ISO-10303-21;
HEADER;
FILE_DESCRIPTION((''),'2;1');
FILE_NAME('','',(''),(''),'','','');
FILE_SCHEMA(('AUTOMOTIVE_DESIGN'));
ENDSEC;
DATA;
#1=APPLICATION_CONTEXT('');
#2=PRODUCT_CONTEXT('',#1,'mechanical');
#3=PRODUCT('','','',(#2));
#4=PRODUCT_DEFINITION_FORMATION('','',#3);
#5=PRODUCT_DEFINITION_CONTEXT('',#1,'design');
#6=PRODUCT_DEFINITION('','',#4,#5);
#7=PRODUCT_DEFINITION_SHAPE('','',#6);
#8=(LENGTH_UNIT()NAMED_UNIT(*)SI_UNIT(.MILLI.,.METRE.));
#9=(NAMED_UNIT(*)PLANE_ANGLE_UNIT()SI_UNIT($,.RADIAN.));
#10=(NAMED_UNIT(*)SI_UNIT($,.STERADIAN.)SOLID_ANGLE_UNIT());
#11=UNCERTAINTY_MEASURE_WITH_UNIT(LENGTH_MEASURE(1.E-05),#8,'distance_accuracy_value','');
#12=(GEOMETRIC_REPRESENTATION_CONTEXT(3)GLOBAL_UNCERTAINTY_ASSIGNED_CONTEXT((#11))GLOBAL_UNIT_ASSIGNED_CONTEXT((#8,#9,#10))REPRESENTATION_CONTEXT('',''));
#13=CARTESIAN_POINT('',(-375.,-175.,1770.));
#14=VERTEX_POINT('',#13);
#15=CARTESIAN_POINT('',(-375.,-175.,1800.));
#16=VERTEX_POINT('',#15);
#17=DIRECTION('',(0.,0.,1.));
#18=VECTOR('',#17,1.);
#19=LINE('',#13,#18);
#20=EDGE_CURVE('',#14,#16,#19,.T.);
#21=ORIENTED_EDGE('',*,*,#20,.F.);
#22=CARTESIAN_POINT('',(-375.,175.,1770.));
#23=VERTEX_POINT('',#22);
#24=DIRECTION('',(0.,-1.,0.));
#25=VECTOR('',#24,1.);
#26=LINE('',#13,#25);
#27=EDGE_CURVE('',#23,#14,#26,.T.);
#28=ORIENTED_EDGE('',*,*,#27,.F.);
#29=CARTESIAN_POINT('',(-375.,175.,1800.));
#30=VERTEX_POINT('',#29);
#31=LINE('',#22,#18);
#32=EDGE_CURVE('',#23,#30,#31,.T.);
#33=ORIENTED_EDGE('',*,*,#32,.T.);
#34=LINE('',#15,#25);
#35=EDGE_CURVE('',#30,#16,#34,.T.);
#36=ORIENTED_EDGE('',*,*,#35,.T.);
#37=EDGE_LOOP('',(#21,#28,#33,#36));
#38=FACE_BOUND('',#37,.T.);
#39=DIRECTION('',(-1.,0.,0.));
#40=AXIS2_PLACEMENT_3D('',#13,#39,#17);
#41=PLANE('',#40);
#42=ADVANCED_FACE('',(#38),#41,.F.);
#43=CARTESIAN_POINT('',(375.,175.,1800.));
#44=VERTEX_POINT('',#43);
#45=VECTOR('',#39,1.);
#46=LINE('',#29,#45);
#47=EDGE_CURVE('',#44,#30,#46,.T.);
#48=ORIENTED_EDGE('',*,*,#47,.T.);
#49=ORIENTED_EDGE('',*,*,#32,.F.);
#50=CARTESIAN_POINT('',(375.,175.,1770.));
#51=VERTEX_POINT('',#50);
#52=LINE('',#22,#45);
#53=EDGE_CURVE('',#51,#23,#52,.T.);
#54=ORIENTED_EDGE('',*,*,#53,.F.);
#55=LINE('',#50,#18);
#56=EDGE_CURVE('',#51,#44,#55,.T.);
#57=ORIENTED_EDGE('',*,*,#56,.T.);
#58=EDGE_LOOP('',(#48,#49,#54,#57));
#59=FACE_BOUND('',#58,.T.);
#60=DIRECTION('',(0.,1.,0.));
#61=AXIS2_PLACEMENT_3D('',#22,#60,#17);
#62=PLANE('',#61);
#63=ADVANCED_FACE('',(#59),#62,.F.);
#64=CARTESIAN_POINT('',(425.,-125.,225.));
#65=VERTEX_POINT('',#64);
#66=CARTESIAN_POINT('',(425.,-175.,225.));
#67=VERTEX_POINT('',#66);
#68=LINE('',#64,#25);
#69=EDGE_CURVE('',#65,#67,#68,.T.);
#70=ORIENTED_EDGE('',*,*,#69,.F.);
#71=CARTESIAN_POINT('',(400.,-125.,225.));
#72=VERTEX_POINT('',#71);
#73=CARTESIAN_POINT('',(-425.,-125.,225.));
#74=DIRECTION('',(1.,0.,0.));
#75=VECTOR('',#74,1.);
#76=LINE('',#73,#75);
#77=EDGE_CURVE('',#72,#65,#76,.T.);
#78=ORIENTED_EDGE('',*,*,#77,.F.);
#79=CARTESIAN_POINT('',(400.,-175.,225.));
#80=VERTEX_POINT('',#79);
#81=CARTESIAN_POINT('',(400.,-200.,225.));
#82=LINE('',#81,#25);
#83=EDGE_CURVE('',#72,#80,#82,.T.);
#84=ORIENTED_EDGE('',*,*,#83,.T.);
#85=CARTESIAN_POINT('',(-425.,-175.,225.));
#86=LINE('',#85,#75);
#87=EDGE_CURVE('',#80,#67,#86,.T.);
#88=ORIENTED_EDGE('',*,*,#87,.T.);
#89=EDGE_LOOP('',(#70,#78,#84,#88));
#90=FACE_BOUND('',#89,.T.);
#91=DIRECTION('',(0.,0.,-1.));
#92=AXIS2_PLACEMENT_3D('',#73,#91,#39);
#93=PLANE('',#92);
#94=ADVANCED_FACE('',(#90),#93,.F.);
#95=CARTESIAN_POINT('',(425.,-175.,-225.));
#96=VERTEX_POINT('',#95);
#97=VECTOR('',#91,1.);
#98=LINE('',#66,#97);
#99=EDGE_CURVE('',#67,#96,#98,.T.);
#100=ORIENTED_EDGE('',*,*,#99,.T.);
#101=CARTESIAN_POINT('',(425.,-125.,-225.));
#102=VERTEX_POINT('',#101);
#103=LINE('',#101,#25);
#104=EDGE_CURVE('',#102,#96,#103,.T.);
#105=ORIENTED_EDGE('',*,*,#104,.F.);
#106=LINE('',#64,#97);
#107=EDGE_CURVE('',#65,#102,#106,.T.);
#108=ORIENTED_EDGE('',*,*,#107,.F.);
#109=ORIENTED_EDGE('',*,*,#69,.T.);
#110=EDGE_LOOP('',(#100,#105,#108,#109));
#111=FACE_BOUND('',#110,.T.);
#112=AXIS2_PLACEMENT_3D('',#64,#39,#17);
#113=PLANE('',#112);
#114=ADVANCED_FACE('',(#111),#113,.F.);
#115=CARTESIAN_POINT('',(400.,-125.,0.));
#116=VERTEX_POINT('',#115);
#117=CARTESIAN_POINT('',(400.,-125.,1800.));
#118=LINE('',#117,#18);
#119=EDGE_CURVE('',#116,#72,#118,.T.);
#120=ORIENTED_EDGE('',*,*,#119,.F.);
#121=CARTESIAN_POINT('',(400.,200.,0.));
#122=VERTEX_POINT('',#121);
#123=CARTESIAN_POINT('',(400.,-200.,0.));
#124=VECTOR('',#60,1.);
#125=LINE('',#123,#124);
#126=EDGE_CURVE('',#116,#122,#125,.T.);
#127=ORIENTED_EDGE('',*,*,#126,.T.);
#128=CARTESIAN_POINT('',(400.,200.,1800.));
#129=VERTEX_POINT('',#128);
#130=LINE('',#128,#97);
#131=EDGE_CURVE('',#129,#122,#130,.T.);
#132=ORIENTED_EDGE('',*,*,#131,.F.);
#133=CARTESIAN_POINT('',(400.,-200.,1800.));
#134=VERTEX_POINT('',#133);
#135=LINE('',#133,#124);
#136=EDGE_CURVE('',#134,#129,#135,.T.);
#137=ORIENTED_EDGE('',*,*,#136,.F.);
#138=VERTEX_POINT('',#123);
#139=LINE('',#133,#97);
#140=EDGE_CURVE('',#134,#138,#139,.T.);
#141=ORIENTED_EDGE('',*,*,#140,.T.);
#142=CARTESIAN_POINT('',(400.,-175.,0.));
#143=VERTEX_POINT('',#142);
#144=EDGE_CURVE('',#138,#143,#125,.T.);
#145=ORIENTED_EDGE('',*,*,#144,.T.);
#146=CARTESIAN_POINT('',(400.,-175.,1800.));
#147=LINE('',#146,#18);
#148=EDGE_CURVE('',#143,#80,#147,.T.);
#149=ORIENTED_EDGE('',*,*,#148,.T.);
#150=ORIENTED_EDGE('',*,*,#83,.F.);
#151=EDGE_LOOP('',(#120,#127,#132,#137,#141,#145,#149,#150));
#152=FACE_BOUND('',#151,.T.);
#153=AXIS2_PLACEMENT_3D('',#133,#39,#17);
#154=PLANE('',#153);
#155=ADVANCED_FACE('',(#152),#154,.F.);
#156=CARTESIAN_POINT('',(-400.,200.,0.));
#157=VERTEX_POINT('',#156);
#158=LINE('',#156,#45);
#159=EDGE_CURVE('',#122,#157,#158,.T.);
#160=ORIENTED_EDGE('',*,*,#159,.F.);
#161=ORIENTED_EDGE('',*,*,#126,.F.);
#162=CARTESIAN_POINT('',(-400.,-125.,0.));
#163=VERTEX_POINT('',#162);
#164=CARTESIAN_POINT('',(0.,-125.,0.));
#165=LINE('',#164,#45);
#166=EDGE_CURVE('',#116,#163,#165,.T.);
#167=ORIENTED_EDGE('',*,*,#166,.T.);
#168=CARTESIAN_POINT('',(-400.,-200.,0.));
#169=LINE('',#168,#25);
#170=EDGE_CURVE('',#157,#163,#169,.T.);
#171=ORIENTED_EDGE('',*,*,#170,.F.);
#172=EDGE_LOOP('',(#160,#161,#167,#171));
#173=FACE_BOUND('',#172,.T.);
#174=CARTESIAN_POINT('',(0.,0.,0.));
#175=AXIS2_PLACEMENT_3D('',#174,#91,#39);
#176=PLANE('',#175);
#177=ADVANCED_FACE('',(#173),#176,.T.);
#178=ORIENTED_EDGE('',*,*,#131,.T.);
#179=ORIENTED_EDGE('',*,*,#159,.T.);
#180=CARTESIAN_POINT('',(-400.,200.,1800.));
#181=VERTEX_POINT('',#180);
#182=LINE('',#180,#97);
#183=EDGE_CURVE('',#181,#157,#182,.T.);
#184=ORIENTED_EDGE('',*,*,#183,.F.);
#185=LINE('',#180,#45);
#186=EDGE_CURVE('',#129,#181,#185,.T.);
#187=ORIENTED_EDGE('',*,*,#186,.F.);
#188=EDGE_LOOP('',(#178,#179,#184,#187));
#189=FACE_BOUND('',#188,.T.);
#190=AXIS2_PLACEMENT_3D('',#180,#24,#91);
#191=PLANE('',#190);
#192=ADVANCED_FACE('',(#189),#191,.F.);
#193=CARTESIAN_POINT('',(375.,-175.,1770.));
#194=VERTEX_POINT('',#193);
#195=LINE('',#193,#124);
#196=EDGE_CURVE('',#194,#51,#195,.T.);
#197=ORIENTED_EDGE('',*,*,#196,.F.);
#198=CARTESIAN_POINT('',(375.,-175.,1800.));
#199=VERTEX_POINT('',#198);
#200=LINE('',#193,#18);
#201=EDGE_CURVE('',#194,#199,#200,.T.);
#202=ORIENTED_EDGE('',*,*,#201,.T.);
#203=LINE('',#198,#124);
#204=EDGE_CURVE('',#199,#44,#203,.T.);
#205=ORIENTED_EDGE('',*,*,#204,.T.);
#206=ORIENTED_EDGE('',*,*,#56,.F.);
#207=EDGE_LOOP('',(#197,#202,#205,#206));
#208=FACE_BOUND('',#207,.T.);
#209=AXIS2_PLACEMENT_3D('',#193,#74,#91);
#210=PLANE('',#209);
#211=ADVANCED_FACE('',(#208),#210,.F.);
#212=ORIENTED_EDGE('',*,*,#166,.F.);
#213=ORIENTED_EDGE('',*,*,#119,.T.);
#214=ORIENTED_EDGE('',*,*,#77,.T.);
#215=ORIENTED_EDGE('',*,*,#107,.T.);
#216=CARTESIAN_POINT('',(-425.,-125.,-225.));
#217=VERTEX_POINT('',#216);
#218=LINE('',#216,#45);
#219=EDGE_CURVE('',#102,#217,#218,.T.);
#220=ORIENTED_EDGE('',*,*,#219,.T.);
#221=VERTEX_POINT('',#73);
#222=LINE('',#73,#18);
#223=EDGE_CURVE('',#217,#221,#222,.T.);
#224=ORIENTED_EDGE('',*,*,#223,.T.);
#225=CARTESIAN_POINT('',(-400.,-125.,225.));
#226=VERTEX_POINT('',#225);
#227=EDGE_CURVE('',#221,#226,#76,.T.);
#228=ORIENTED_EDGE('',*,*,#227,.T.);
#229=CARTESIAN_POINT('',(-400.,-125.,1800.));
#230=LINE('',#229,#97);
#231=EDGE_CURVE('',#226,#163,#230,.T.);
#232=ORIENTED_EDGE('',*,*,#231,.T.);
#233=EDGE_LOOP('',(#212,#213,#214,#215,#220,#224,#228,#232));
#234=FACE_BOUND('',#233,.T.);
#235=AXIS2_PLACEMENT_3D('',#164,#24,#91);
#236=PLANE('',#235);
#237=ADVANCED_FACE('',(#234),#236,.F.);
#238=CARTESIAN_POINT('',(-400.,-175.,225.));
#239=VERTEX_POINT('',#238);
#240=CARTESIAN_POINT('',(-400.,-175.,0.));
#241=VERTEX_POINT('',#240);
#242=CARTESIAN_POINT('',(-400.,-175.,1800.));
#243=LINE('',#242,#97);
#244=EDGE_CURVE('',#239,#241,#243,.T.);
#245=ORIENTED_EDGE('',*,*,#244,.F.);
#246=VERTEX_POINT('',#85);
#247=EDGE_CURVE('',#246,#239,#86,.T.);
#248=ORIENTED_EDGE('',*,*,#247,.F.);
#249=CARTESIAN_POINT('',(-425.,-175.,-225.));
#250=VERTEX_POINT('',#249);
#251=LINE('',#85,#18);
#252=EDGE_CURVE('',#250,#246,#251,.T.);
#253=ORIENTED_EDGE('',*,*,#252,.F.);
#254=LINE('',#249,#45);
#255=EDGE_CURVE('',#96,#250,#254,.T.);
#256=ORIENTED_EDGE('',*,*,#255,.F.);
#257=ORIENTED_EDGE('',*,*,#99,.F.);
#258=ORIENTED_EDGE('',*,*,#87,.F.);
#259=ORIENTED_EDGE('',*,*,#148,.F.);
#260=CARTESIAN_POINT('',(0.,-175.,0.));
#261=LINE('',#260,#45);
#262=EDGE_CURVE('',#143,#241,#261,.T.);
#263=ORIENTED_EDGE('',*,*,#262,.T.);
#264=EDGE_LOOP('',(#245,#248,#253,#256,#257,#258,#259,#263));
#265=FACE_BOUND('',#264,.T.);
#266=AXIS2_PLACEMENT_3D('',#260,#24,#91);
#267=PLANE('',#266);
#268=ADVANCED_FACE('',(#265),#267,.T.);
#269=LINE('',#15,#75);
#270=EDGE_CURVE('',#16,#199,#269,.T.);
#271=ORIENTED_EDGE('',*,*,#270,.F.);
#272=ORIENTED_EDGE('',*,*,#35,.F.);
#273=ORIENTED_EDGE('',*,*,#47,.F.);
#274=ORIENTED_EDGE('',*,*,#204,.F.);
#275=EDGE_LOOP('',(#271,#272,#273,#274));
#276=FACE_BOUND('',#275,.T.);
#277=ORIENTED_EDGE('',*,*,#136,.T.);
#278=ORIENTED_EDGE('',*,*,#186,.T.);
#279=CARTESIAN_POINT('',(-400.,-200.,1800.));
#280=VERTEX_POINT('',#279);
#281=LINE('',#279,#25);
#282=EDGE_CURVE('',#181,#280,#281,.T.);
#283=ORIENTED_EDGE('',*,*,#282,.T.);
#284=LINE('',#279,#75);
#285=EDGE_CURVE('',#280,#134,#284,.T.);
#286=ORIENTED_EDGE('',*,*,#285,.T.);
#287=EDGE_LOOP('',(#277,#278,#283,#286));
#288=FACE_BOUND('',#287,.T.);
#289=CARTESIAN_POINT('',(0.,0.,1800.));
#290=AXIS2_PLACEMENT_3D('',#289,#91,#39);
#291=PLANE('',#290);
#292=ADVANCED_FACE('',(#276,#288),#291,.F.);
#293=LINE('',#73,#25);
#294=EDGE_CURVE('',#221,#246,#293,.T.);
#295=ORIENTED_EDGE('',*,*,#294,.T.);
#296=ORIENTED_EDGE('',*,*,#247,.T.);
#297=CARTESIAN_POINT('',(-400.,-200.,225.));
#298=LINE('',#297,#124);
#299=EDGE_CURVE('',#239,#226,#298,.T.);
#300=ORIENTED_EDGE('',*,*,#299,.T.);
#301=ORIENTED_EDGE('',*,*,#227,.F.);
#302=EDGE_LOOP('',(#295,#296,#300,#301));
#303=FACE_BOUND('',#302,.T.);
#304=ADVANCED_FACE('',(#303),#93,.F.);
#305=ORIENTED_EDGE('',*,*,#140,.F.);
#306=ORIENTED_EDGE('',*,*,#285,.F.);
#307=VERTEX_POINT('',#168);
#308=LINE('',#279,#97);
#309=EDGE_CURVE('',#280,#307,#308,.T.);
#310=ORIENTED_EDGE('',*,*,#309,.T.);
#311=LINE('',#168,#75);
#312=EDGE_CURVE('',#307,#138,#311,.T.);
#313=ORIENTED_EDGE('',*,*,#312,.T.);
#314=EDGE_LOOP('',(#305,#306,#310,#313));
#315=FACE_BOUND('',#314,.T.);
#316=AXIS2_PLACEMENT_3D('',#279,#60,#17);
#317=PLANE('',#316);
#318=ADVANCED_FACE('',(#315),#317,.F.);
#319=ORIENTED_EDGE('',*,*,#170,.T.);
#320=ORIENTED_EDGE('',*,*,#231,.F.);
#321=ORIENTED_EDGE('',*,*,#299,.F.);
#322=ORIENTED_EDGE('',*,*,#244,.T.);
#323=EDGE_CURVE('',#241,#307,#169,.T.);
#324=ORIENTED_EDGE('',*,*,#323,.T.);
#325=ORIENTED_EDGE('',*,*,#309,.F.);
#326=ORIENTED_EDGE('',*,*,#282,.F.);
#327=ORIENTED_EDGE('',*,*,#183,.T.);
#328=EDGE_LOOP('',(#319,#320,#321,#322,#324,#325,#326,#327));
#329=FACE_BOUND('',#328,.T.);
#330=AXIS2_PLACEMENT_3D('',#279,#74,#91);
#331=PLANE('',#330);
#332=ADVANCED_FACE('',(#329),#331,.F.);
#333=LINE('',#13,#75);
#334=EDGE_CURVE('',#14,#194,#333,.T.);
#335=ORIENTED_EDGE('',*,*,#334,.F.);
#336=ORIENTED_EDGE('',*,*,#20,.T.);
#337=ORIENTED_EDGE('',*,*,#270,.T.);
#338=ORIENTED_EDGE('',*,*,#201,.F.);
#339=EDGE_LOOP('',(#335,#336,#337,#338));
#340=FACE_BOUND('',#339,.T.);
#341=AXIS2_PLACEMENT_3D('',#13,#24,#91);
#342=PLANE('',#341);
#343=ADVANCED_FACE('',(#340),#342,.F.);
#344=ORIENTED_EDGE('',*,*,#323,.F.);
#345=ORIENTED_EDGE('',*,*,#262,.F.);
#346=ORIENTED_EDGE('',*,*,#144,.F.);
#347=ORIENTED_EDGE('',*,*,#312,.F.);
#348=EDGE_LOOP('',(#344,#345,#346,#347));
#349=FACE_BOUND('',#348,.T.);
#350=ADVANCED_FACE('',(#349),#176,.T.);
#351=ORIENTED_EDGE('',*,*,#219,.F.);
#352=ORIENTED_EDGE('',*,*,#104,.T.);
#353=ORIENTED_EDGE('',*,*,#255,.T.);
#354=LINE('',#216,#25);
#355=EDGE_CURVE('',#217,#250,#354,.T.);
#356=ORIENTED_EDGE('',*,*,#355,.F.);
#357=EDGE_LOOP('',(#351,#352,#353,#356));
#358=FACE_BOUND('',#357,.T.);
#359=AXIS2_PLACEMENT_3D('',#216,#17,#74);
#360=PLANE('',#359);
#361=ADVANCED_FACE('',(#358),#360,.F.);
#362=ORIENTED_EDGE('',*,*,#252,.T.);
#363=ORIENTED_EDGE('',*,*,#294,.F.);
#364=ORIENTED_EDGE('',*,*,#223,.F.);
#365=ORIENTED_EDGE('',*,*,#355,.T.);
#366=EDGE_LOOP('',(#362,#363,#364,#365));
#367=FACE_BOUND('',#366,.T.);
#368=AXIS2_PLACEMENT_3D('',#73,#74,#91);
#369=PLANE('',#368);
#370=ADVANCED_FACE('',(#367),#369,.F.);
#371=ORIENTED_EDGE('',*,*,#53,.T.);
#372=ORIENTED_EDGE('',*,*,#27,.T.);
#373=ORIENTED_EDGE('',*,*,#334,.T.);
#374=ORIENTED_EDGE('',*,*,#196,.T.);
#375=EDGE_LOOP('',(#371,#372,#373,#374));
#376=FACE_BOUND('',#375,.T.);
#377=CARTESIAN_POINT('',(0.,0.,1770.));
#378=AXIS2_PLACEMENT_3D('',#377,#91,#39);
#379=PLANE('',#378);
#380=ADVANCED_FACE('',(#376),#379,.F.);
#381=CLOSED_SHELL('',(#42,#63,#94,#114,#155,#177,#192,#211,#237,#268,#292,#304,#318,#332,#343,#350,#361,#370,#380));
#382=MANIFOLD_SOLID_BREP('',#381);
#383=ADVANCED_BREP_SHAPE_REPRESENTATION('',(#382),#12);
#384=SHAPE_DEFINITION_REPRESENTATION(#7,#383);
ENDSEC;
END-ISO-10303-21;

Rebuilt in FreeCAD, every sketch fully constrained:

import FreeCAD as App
import Part
import Sketcher
Q = App.Units.Quantity


def add_polygon(sketch, points):
    """Adds a closed chain of lines whose ends are joined by coincident constraints."""
    first, n = sketch.GeometryCount, len(points)
    for a, b in zip(points, points[1:] + points[:1]):
        sketch.addGeometry(Part.LineSegment(App.Vector(*a, 0), App.Vector(*b, 0)), False)
    for i in range(n):
        sketch.addConstraint(Sketcher.Constraint("Coincident", first + i, 2, first + (i + 1) % n, 1))

doc = App.newDocument("Part")
body = doc.addObject("PartDesign::Body", "Body")

# Sketch on XY plane
sketch1 = body.newObject("Sketcher::SketchObject", "Sketch")
sketch1.AttachmentSupport = (doc.getObject("XY_Plane"), [""])
sketch1.MapMode = "FlatFace"
add_polygon(sketch1, [(-400, 200), (-400, -200), (400, -200), (400, 200)])  # lines 0-3
sketch1.addConstraint(Sketcher.Constraint("Vertical", 0))
sketch1.addConstraint(Sketcher.Constraint("Horizontal", 1))
sketch1.addConstraint(Sketcher.Constraint("Vertical", 2))
sketch1.addConstraint(Sketcher.Constraint("Horizontal", 3))
sketch1.addConstraint(Sketcher.Constraint("Symmetric", 0, 2, 2, 2, -1, 1))
sketch1.addConstraint(Sketcher.Constraint("DistanceX", 1, 1, 1, 2, Q("800 mm")))
sketch1.addConstraint(Sketcher.Constraint("DistanceY", 0, 2, 0, 1, Q("400 mm")))
pad1 = body.newObject("PartDesign::Pad", "Pad")
pad1.Profile = sketch1
pad1.Length = 1800

# Sketch on XY plane
sketch2 = body.newObject("Sketcher::SketchObject", "Sketch001")
sketch2.AttachmentSupport = (doc.getObject("XY_Plane"), [""])
sketch2.MapMode = "FlatFace"
sketch2.AttachmentOffset = App.Placement(App.Vector(0, 0, 1800), App.Rotation())
add_polygon(sketch2, [(-375, 175), (-375, -175), (375, -175), (375, 175)])  # lines 0-3
sketch2.addConstraint(Sketcher.Constraint("Vertical", 0))
sketch2.addConstraint(Sketcher.Constraint("Horizontal", 1))
sketch2.addConstraint(Sketcher.Constraint("Vertical", 2))
sketch2.addConstraint(Sketcher.Constraint("Horizontal", 3))
sketch2.addConstraint(Sketcher.Constraint("Symmetric", 0, 2, 2, 2, -1, 1))
sketch2.addConstraint(Sketcher.Constraint("DistanceX", 1, 1, 1, 2, Q("750 mm")))
sketch2.addConstraint(Sketcher.Constraint("DistanceY", 0, 2, 0, 1, Q("350 mm")))
pocket1 = body.newObject("PartDesign::Pocket", "Pocket")
pocket1.Profile = sketch2
pocket1.Length = 30

# Sketch on XY plane
sketch3 = body.newObject("Sketcher::SketchObject", "Sketch002")
sketch3.AttachmentSupport = (doc.getObject("XY_Plane"), [""])
sketch3.MapMode = "FlatFace"
add_polygon(sketch3, [(-375, -170), (-375, -190), (375, -190), (375, -170)])  # lines 0-3
sketch3.addConstraint(Sketcher.Constraint("Vertical", 0))
sketch3.addConstraint(Sketcher.Constraint("Horizontal", 1))
sketch3.addConstraint(Sketcher.Constraint("Vertical", 2))
sketch3.addConstraint(Sketcher.Constraint("Horizontal", 3))
sketch3.addConstraint(Sketcher.Constraint("DistanceX", 1, 1, 1, 2, Q("750 mm")))
sketch3.addConstraint(Sketcher.Constraint("DistanceY", 0, 2, 0, 1, Q("20 mm")))
sketch3.addConstraint(Sketcher.Constraint("DistanceX", 0, 2, -1, 1, Q("375 mm")))
sketch3.addConstraint(Sketcher.Constraint("DistanceY", 0, 2, -1, 1, Q("190 mm")))
pad2 = body.newObject("PartDesign::Pad", "Pad001")
pad2.Profile = sketch3
pad2.Length = 800

# Sketch on XY plane
sketch4 = body.newObject("Sketcher::SketchObject", "Sketch003")
sketch4.AttachmentSupport = (doc.getObject("XY_Plane"), [""])
sketch4.MapMode = "FlatFace"
sketch4.addGeometry(Part.Circle(App.Vector(300, -180, 0), App.Vector(0, 0, 1), 20), False)
sketch4.addConstraint(Sketcher.Constraint("Diameter", 0, Q("40 mm")))
sketch4.addConstraint(Sketcher.Constraint("DistanceX", -1, 1, 0, 3, Q("300 mm")))
sketch4.addConstraint(Sketcher.Constraint("DistanceY", 0, 3, -1, 1, Q("180 mm")))
pad3 = body.newObject("PartDesign::Pad", "Pad002")
pad3.Profile = sketch4
pad3.Length = 50

# Sketch on XZ plane
sketch5 = body.newObject("Sketcher::SketchObject", "Sketch004")
sketch5.AttachmentSupport = (doc.getObject("XZ_Plane"), [""])
sketch5.MapMode = "FlatFace"
sketch5.AttachmentOffset = App.Placement(App.Vector(0, 0, 175), App.Rotation())
add_polygon(sketch5, [(-425, -225), (-425, 225), (425, 225), (425, -225)])  # lines 0-3
sketch5.addConstraint(Sketcher.Constraint("Vertical", 0))
sketch5.addConstraint(Sketcher.Constraint("Horizontal", 1))
sketch5.addConstraint(Sketcher.Constraint("Vertical", 2))
sketch5.addConstraint(Sketcher.Constraint("Horizontal", 3))
sketch5.addConstraint(Sketcher.Constraint("Symmetric", 0, 2, 2, 2, -1, 1))
sketch5.addConstraint(Sketcher.Constraint("DistanceX", 1, 1, 1, 2, Q("850 mm")))
sketch5.addConstraint(Sketcher.Constraint("DistanceY", 0, 1, 0, 2, Q("450 mm")))
pad4 = body.newObject("PartDesign::Pad", "Pad003")
pad4.Profile = sketch5
pad4.Length = 50
pad4.Reversed = True

doc.recompute()
